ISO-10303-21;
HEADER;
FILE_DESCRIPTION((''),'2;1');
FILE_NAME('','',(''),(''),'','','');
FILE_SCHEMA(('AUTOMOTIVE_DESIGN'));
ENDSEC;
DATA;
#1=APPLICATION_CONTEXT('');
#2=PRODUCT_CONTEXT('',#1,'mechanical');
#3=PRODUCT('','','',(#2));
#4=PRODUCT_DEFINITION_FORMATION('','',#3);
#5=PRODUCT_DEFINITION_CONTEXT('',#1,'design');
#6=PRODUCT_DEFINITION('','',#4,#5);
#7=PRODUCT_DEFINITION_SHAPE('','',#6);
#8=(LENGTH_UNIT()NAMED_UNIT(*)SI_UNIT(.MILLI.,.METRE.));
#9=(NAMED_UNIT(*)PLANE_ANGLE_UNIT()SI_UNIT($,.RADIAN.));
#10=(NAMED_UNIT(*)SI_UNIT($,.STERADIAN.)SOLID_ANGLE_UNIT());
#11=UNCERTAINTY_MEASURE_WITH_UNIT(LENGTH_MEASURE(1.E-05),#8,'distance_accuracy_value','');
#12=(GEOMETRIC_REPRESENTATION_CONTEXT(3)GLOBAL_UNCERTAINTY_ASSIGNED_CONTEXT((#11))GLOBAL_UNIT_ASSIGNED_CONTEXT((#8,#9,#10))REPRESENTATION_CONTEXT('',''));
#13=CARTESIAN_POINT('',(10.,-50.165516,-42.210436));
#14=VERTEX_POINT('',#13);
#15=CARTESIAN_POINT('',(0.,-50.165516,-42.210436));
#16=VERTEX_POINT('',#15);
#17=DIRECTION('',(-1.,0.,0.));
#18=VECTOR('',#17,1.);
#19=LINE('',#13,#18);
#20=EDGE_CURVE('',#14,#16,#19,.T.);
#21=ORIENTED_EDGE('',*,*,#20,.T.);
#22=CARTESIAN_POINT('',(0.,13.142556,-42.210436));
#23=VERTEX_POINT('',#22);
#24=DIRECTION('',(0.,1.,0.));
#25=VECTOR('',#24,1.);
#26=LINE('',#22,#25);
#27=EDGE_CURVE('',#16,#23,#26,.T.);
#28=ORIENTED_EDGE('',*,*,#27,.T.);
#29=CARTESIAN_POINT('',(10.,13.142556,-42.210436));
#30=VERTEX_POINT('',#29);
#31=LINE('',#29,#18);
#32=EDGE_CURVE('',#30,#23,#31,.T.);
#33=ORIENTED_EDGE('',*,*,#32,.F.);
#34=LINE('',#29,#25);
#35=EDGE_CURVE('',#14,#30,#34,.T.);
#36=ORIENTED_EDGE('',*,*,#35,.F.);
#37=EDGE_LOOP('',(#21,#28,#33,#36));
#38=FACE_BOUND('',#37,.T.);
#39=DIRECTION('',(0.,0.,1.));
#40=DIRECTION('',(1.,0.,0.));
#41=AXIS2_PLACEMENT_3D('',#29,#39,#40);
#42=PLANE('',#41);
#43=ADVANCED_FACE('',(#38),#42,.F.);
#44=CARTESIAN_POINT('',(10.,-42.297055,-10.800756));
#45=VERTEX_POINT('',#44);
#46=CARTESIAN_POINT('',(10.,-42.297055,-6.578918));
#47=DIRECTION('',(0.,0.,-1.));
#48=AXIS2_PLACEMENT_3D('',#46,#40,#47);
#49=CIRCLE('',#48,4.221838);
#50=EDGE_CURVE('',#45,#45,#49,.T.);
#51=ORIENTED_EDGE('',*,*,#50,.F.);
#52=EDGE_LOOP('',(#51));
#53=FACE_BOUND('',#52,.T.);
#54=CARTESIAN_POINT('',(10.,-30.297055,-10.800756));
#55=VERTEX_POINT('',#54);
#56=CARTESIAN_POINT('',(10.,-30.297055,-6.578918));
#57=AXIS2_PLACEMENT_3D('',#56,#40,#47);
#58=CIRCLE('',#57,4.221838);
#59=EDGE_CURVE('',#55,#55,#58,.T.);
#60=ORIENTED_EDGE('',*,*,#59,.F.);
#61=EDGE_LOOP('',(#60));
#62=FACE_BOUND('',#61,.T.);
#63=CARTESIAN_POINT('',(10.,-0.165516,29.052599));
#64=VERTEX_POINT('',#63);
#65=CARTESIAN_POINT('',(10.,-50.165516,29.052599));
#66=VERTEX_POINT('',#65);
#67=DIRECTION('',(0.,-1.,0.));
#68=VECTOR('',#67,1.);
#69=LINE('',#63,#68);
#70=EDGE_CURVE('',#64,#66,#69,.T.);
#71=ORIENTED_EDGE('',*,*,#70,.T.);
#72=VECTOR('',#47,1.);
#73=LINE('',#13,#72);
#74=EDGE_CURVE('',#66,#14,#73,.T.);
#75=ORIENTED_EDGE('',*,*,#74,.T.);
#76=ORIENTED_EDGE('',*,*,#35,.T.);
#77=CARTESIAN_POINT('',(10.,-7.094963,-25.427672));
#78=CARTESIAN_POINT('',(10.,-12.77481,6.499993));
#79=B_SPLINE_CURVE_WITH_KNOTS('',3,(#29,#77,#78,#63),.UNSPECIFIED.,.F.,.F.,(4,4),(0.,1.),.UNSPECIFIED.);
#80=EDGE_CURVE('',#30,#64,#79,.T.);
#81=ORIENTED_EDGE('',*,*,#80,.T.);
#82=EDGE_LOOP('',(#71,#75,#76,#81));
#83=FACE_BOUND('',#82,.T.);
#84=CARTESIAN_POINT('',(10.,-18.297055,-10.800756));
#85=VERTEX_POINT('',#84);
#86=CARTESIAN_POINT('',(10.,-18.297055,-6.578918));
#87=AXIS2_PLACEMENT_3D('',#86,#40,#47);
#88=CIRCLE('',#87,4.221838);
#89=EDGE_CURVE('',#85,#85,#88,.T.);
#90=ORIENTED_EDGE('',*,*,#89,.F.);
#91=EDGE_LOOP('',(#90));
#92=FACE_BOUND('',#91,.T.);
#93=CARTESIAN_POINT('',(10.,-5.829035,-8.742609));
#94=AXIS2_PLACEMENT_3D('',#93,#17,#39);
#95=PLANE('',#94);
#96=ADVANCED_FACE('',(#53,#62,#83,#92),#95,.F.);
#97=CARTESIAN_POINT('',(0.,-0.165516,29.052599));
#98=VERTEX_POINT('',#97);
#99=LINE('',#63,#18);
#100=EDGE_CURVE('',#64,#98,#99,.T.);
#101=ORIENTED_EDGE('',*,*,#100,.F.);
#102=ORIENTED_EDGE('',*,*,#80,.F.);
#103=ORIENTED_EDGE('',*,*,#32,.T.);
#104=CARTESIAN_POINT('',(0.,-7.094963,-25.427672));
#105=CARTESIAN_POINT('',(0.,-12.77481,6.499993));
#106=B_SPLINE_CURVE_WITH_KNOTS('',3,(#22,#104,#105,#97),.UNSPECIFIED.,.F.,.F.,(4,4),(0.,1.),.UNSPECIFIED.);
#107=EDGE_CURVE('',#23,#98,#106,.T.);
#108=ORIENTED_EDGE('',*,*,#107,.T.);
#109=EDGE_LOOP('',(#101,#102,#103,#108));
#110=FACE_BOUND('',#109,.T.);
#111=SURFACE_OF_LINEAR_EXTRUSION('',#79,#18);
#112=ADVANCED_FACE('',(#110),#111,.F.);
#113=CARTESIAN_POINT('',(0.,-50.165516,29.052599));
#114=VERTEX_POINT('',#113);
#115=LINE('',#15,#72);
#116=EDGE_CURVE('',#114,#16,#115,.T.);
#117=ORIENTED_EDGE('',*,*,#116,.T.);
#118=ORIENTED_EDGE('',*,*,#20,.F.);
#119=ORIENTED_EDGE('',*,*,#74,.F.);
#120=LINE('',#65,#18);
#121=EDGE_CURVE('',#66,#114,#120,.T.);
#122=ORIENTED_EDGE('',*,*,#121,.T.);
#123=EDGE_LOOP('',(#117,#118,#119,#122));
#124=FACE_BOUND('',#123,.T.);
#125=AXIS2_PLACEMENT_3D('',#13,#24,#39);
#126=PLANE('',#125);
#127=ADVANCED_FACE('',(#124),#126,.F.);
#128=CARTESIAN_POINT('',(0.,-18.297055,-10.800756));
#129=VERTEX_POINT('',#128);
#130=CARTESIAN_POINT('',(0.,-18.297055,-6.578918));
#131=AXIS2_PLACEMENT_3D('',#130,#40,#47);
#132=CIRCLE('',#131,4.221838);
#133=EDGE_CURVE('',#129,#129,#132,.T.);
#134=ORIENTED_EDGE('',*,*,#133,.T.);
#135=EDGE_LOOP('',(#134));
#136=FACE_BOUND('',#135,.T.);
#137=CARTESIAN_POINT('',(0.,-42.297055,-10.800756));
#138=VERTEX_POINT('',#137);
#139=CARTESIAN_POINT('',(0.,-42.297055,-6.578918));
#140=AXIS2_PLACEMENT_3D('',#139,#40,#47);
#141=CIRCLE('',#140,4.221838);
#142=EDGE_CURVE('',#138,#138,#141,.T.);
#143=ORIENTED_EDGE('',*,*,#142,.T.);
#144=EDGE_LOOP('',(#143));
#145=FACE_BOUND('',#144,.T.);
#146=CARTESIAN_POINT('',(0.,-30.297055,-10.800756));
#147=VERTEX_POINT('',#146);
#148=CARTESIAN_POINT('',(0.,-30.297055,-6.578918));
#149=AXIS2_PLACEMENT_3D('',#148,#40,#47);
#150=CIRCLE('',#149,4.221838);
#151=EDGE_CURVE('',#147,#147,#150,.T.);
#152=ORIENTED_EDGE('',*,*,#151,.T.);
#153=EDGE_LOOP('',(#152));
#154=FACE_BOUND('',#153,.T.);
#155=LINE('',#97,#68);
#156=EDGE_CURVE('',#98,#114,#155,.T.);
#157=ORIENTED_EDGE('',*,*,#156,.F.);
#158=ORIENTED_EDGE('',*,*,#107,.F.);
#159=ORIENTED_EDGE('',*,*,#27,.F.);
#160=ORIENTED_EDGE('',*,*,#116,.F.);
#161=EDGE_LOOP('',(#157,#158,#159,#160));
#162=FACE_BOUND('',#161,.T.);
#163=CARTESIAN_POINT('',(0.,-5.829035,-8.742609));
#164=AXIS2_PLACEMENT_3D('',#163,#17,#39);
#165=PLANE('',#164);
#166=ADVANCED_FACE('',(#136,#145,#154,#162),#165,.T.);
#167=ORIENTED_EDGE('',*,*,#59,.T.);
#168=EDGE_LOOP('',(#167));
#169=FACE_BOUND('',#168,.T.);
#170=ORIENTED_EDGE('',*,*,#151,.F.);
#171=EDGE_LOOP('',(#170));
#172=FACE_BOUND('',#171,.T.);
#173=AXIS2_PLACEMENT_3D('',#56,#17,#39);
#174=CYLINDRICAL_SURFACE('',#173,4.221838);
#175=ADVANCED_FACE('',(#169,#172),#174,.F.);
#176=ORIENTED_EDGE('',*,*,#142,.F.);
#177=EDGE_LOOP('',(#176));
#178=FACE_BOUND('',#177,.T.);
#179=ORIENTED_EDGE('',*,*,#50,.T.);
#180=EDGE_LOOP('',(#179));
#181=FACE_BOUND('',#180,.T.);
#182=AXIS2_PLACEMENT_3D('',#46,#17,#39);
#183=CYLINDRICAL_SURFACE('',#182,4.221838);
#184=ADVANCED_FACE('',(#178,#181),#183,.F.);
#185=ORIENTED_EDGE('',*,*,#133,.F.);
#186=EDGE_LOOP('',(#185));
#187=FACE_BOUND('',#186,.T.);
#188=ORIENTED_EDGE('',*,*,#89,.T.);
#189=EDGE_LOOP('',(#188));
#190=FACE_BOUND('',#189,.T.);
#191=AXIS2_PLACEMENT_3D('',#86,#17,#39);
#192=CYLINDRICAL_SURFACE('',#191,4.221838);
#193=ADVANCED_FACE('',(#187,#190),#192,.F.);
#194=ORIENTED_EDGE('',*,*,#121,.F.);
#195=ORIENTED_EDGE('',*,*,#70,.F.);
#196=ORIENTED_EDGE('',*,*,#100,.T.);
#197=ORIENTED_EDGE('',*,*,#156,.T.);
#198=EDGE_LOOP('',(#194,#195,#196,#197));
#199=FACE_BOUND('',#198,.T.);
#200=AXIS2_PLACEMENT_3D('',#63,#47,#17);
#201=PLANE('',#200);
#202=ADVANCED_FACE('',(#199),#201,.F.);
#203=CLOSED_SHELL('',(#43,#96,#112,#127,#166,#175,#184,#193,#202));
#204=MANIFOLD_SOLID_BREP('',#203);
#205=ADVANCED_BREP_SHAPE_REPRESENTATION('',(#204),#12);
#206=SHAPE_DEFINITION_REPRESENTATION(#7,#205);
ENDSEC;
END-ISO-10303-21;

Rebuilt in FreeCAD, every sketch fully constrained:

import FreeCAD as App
import Part
import Sketcher
from FreeCAD import Vector
Q = App.Units.Quantity

doc = App.newDocument("Part")
body = doc.addObject("PartDesign::Body", "Body")

# Sketch on YZ plane
sketch1 = body.newObject("Sketcher::SketchObject", "Sketch")
sketch1.AttachmentSupport = (doc.getObject("YZ_Plane"), [""])
sketch1.MapMode = "FlatFace"
sketch1.addGeometry([
    Part.LineSegment(Vector(-0.165516, 29.052599, 0), Vector(-50.165516, 29.052599, 0)),  # 0
    Part.LineSegment(Vector(-50.165516, 29.052599, 0), Vector(-50.165516, -42.210436, 0)),  # 1
    Part.LineSegment(Vector(-50.165516, -42.210436, 0), Vector(13.142556, -42.210436, 0)),  # 2
    Part.BSplineCurve([Vector(-0.165516, 29.052599, 0), Vector(-12.77481, 6.499993, 0), Vector(-7.094963, -25.427672, 0), Vector(13.142556, -42.210436, 0)], [4, 4], [0, 1], False, 3, [1, 1, 1, 1], False),  # 3
    Part.Circle(Vector(-42.297055, -6.578918, 0), Vector(0, 0, 1), 4.221838),  # 4
    Part.Circle(Vector(-30.297055, -6.578918, 0), Vector(0, 0, 1), 4.221838),  # 5
    Part.Circle(Vector(-18.297055, -6.578918, 0), Vector(0, 0, 1), 4.221838),  # 6
], False)
sketch1.addConstraint([
    Sketcher.Constraint("Block", 3),
    Sketcher.Constraint("Coincident", 0, 2, 1, 1),
    Sketcher.Constraint("Coincident", 1, 2, 2, 1),
    Sketcher.Constraint("Coincident", 2, 2, 3, 2),
    Sketcher.Constraint("Coincident", 3, 1, 0, 1),
    Sketcher.Constraint("Horizontal", 0),
    Sketcher.Constraint("Vertical", 1),
    Sketcher.Constraint("Horizontal", 2),
    Sketcher.Constraint("Equal", 4, 5),
    Sketcher.Constraint("Equal", 5, 6),
    Sketcher.Constraint("Horizontal", 4, 3, 5, 3),
    Sketcher.Constraint("Horizontal", 5, 3, 6, 3),
    Sketcher.Constraint("DistanceX", 0, 2, 0, 1, Q("50 mm")),
    Sketcher.Constraint("DistanceX", 4, 3, 5, 3, Q("12 mm")),
    Sketcher.Constraint("DistanceX", 5, 3, 6, 3, Q("12 mm")),
    Sketcher.Constraint("Diameter", 4, Q("8.443676 mm")),
    Sketcher.Constraint("DistanceY", 4, 3, -1, 1, Q("6.578918 mm")),
    Sketcher.Constraint("DistanceX", 0, 2, 4, 3, Q("7.868462 mm")),
])
pad1 = body.newObject("PartDesign::Pad", "Pad")
pad1.Profile = sketch1
pad1.Length = 10

doc.recompute()
